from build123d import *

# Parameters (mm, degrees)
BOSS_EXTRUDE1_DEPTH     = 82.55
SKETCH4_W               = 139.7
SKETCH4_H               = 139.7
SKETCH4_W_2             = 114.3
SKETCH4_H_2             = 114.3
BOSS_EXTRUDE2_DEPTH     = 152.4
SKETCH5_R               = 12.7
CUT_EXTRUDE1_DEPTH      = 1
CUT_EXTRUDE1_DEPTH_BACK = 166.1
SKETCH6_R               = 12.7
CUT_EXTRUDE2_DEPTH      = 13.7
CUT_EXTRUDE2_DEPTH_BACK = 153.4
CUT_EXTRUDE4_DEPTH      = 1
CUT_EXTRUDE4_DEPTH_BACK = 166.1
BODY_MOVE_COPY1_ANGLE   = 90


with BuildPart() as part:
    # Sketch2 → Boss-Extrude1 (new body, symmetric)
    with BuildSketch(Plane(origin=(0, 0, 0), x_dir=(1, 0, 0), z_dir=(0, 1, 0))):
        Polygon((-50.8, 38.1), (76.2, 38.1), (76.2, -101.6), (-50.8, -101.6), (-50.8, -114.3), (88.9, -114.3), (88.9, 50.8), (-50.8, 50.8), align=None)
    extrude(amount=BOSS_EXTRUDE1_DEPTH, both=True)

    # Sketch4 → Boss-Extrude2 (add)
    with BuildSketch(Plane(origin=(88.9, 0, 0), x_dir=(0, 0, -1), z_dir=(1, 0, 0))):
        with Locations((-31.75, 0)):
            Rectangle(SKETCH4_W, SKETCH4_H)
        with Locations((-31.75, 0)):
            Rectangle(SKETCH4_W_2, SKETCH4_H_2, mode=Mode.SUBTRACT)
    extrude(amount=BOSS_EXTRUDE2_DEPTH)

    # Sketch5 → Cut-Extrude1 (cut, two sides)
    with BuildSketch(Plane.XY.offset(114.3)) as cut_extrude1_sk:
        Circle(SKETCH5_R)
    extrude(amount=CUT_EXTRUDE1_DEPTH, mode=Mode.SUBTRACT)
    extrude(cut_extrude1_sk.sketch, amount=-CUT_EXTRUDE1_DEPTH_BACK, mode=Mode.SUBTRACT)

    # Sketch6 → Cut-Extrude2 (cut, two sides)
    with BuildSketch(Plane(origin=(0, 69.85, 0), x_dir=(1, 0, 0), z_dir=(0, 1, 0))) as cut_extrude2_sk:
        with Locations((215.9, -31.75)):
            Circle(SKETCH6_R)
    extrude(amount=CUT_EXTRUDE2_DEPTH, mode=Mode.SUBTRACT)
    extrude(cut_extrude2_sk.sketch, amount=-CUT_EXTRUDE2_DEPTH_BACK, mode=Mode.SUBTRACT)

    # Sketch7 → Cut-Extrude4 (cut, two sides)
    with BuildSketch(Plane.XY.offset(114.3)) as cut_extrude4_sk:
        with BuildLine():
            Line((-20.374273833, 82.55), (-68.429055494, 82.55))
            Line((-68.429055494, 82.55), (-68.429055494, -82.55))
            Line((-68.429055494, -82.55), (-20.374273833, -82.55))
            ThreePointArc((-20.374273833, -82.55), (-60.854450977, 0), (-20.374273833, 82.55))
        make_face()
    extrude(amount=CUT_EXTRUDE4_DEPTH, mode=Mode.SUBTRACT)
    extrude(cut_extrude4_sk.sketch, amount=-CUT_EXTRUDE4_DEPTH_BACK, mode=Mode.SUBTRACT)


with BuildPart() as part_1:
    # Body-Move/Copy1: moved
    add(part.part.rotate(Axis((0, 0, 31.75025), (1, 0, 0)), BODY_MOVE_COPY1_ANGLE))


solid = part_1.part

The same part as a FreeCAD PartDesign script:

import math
import FreeCAD as App
import Part
import Sketcher

V = App.Vector
Q = App.Units.Quantity

doc = App.newDocument("Part")
body = doc.addObject("PartDesign::Body", "Body")

sketch1 = body.newObject("Sketcher::SketchObject", "Sketch")
sketch1.AttachmentSupport = (doc.getObject("XZ_Plane"), [""])
sketch1.MapMode = "FlatFace"
sketch1.addGeometry(Part.LineSegment(V(-50.8, -38.1, 0), V(76.2, -38.1, 0)), False)
sketch1.addGeometry(Part.LineSegment(V(76.2, -38.1, 0), V(76.2, 101.6, 0)), False)
sketch1.addGeometry(Part.LineSegment(V(76.2, 101.6, 0), V(-50.8, 101.6, 0)), False)
sketch1.addGeometry(Part.LineSegment(V(-50.8, 101.6, 0), V(-50.8, 114.3, 0)), False)
sketch1.addGeometry(Part.LineSegment(V(-50.8, 114.3, 0), V(88.9, 114.3, 0)), False)
sketch1.addGeometry(Part.LineSegment(V(88.9, 114.3, 0), V(88.9, -50.8, 0)), False)
sketch1.addGeometry(Part.LineSegment(V(88.9, -50.8, 0), V(-50.8, -50.8, 0)), False)
sketch1.addGeometry(Part.LineSegment(V(-50.8, -50.8, 0), V(-50.8, -38.1, 0)), False)
sketch1.addConstraint(Sketcher.Constraint("Coincident", 0, 2, 1, 1))
sketch1.addConstraint(Sketcher.Constraint("Coincident", 1, 2, 2, 1))
sketch1.addConstraint(Sketcher.Constraint("Coincident", 2, 2, 3, 1))
sketch1.addConstraint(Sketcher.Constraint("Coincident", 3, 2, 4, 1))
sketch1.addConstraint(Sketcher.Constraint("Coincident", 4, 2, 5, 1))
sketch1.addConstraint(Sketcher.Constraint("Coincident", 5, 2, 6, 1))
sketch1.addConstraint(Sketcher.Constraint("Coincident", 6, 2, 7, 1))
sketch1.addConstraint(Sketcher.Constraint("Coincident", 7, 2, 0, 1))
sketch1.addConstraint(Sketcher.Constraint("Horizontal", 0))
sketch1.addConstraint(Sketcher.Constraint("Vertical", 1))
sketch1.addConstraint(Sketcher.Constraint("Horizontal", 2))
sketch1.addConstraint(Sketcher.Constraint("Vertical", 3))
sketch1.addConstraint(Sketcher.Constraint("Horizontal", 4))
sketch1.addConstraint(Sketcher.Constraint("Vertical", 5))
sketch1.addConstraint(Sketcher.Constraint("Horizontal", 6))
sketch1.addConstraint(Sketcher.Constraint("Vertical", 7))
sketch1.addConstraint(Sketcher.Constraint("Vertical", 3, 2, 6, 2))
sketch1.addConstraint(Sketcher.Constraint("Equal", 6, 1))
sketch1.addConstraint(Sketcher.Constraint("Equal", 3, 7))
sketch1.addConstraint(Sketcher.Constraint("DistanceX", 0, 1, 0, 2, Q("5 in")))
sketch1.addConstraint(Sketcher.Constraint("DistanceX", 4, 1, 4, 2, Q("5.5 in")))
sketch1.addConstraint(Sketcher.Constraint("DistanceY", 3, 1, 3, 2, Q("0.5 in")))
sketch1.addConstraint(Sketcher.Constraint("DistanceX", -1, 1, 0, 2, Q("3 in")))
sketch1.addConstraint(Sketcher.Constraint("DistanceY", -1, 1, 1, 2, Q("4 in")))
pad1 = body.newObject("PartDesign::Pad", "Pad")
pad1.Profile = sketch1
pad1.Length = Q("6.5 in")
pad1.Midplane = True

sketch2 = body.newObject("Sketcher::SketchObject", "Sketch001")
sketch2.AttachmentSupport = (doc.getObject("YZ_Plane"), [""])
sketch2.MapMode = "FlatFace"
sketch2.AttachmentOffset = App.Placement(V(0, 0, 3.5 * 25.4), App.Rotation())
sketch2.addGeometry(Part.LineSegment(V(69.85, 101.6, 0), V(-69.85, 101.6, 0)), False)
sketch2.addGeometry(Part.LineSegment(V(-69.85, 101.6, 0), V(-69.85, -38.1, 0)), False)
sketch2.addGeometry(Part.LineSegment(V(-69.85, -38.1, 0), V(69.85, -38.1, 0)), False)
sketch2.addGeometry(Part.LineSegment(V(69.85, -38.1, 0), V(69.85, 101.6, 0)), False)
sketch2.addGeometry(Part.LineSegment(V(-57.15, -25.4, 0), V(-57.15, 88.9, 0)), False)
sketch2.addGeometry(Part.LineSegment(V(-57.15, 88.9, 0), V(57.15, 88.9, 0)), False)
sketch2.addGeometry(Part.LineSegment(V(57.15, 88.9, 0), V(57.15, -25.4, 0)), False)
sketch2.addGeometry(Part.LineSegment(V(57.15, -25.4, 0), V(-57.15, -25.4, 0)), False)
sketch2.addConstraint(Sketcher.Constraint("Coincident", 0, 2, 1, 1))
sketch2.addConstraint(Sketcher.Constraint("Coincident", 1, 2, 2, 1))
sketch2.addConstraint(Sketcher.Constraint("Coincident", 2, 2, 3, 1))
sketch2.addConstraint(Sketcher.Constraint("Coincident", 3, 2, 0, 1))
sketch2.addConstraint(Sketcher.Constraint("Coincident", 4, 2, 5, 1))
sketch2.addConstraint(Sketcher.Constraint("Coincident", 5, 2, 6, 1))
sketch2.addConstraint(Sketcher.Constraint("Coincident", 6, 2, 7, 1))
sketch2.addConstraint(Sketcher.Constraint("Coincident", 7, 2, 4, 1))
sketch2.addConstraint(Sketcher.Constraint("Horizontal", 0))
sketch2.addConstraint(Sketcher.Constraint("Vertical", 1))
sketch2.addConstraint(Sketcher.Constraint("Horizontal", 2))
sketch2.addConstraint(Sketcher.Constraint("Vertical", 3))
sketch2.addConstraint(Sketcher.Constraint("Vertical", 4))
sketch2.addConstraint(Sketcher.Constraint("Horizontal", 5))
sketch2.addConstraint(Sketcher.Constraint("Vertical", 6))
sketch2.addConstraint(Sketcher.Constraint("Horizontal", 7))
sketch2.addConstraint(Sketcher.Constraint("Equal", 2, 1))
sketch2.addConstraint(Sketcher.Constraint("Equal", 7, 4))
sketch2.addConstraint(Sketcher.Constraint("DistanceX", 0, 2, 0, 1, Q("5.5 in")))
sketch2.addConstraint(Sketcher.Constraint("DistanceX", 5, 1, 5, 2, Q("4.5 in")))
sketch2.addConstraint(Sketcher.Constraint("DistanceY", -1, 1, 0, 2, Q("4 in")))
sketch2.addConstraint(Sketcher.Constraint("DistanceY", 6, 2, -1, 1, Q("1 in")))
sketch2.addConstraint(Sketcher.Constraint("DistanceX", 4, 2, 3, 2, Q("5 in")))
sketch2.addConstraint(Sketcher.Constraint("DistanceX", 0, 2, -1, 1, Q("2.75 in")))
pad2 = body.newObject("PartDesign::Pad", "Pad001")
pad2.Profile = sketch2
pad2.Length = Q("6 in")

sketch3 = body.newObject("Sketcher::SketchObject", "Sketch002")
sketch3.AttachmentSupport = (doc.getObject("XY_Plane"), [""])
sketch3.MapMode = "FlatFace"
sketch3.AttachmentOffset = App.Placement(V(0, 0, 4.5 * 25.4), App.Rotation())
sketch3.addGeometry(Part.Circle(V(0, 0, 0), V(0, 0, 1), 12.7), False)
sketch3.addConstraint(Sketcher.Constraint("Coincident", 0, 3, -1, 1))
sketch3.addConstraint(Sketcher.Constraint("Diameter", 0, Q("1 in")))
pocket1 = body.newObject("PartDesign::Pocket", "Pocket")
pocket1.Profile = sketch3
pocket1.Type = "ThroughAll"
pocket1.Midplane = True

sketch4 = body.newObject("Sketcher::SketchObject", "Sketch003")
sketch4.AttachmentSupport = (doc.getObject("XZ_Plane"), [""])
sketch4.MapMode = "FlatFace"
sketch4.AttachmentOffset = App.Placement(V(0, 0, -2.75 * 25.4), App.Rotation())
sketch4.addGeometry(Part.Circle(V(215.9, 31.75, 0), V(0, 0, 1), 12.7), False)
sketch4.addConstraint(Sketcher.Constraint("Diameter", 0, Q("1 in")))
sketch4.addConstraint(Sketcher.Constraint("DistanceX", -1, 1, 0, 3, Q("8.5 in")))
sketch4.addConstraint(Sketcher.Constraint("DistanceY", -1, 1, 0, 3, Q("1.25 in")))
pocket2 = body.newObject("PartDesign::Pocket", "Pocket001")
pocket2.Profile = sketch4
pocket2.Type = "ThroughAll"
pocket2.Midplane = True

sketch5 = body.newObject("Sketcher::SketchObject", "Sketch004")
sketch5.AttachmentSupport = (doc.getObject("XY_Plane"), [""])
sketch5.MapMode = "FlatFace"
sketch5.AttachmentOffset = App.Placement(V(0, 0, 4.5 * 25.4), App.Rotation())
sketch5.addGeometry(Part.LineSegment(V(-20.374274, 82.55, 0), V(-68.429055, 82.55, 0)), False)
sketch5.addGeometry(Part.LineSegment(V(-68.429055, 82.55, 0), V(-68.429055, -82.55, 0)), False)
sketch5.addGeometry(Part.LineSegment(V(-68.429055, -82.55, 0), V(-20.374274, -82.55, 0)), False)
sketch5.addGeometry(Part.ArcOfCircle(Part.Circle(V(43.556496, 0, 0), V(0, 0, 1), 104.410947), math.radians(127.755958), math.radians(232.244042)), False)
sketch5.addConstraint(Sketcher.Constraint("Coincident", 0, 2, 1, 1))
sketch5.addConstraint(Sketcher.Constraint("Coincident", 1, 2, 2, 1))
sketch5.addConstraint(Sketcher.Constraint("Coincident", 2, 2, 3, 2))
sketch5.addConstraint(Sketcher.Constraint("Coincident", 3, 1, 0, 1))
sketch5.addConstraint(Sketcher.Constraint("Horizontal", 0))
sketch5.addConstraint(Sketcher.Constraint("Vertical", 1))
sketch5.addConstraint(Sketcher.Constraint("Horizontal", 2))
sketch5.addConstraint(Sketcher.Constraint("Symmetric", 2, 2, 3, 1, -1))
sketch5.addConstraint(Sketcher.Constraint("DistanceY", 1, 2, 1, 1, Q("6.5 in")))
sketch5.addConstraint(Sketcher.Constraint("Radius", 3, 104.410947))
sketch5.addConstraint(Sketcher.Constraint("DistanceX", 0, 2, 0, 1, 48.054782))
sketch5.addConstraint(Sketcher.Constraint("DistanceX", -1, 1, 3, 3, 43.556496))
pocket3 = body.newObject("PartDesign::Pocket", "Pocket002")
pocket3.Profile = sketch5
pocket3.Type = "ThroughAll"
pocket3.Midplane = True
body2 = doc.addObject("PartDesign::Body", "Body001")
doc.recompute()

body.Placement = App.Placement(V(0, 31.75025, 31.75025), App.Rotation(V(1, 0, 0), 90))
boolean = body2.newObject("PartDesign::Boolean", "Boolean")
boolean.Type = "Fuse"
boolean.addObjects([body])

doc.recompute()
